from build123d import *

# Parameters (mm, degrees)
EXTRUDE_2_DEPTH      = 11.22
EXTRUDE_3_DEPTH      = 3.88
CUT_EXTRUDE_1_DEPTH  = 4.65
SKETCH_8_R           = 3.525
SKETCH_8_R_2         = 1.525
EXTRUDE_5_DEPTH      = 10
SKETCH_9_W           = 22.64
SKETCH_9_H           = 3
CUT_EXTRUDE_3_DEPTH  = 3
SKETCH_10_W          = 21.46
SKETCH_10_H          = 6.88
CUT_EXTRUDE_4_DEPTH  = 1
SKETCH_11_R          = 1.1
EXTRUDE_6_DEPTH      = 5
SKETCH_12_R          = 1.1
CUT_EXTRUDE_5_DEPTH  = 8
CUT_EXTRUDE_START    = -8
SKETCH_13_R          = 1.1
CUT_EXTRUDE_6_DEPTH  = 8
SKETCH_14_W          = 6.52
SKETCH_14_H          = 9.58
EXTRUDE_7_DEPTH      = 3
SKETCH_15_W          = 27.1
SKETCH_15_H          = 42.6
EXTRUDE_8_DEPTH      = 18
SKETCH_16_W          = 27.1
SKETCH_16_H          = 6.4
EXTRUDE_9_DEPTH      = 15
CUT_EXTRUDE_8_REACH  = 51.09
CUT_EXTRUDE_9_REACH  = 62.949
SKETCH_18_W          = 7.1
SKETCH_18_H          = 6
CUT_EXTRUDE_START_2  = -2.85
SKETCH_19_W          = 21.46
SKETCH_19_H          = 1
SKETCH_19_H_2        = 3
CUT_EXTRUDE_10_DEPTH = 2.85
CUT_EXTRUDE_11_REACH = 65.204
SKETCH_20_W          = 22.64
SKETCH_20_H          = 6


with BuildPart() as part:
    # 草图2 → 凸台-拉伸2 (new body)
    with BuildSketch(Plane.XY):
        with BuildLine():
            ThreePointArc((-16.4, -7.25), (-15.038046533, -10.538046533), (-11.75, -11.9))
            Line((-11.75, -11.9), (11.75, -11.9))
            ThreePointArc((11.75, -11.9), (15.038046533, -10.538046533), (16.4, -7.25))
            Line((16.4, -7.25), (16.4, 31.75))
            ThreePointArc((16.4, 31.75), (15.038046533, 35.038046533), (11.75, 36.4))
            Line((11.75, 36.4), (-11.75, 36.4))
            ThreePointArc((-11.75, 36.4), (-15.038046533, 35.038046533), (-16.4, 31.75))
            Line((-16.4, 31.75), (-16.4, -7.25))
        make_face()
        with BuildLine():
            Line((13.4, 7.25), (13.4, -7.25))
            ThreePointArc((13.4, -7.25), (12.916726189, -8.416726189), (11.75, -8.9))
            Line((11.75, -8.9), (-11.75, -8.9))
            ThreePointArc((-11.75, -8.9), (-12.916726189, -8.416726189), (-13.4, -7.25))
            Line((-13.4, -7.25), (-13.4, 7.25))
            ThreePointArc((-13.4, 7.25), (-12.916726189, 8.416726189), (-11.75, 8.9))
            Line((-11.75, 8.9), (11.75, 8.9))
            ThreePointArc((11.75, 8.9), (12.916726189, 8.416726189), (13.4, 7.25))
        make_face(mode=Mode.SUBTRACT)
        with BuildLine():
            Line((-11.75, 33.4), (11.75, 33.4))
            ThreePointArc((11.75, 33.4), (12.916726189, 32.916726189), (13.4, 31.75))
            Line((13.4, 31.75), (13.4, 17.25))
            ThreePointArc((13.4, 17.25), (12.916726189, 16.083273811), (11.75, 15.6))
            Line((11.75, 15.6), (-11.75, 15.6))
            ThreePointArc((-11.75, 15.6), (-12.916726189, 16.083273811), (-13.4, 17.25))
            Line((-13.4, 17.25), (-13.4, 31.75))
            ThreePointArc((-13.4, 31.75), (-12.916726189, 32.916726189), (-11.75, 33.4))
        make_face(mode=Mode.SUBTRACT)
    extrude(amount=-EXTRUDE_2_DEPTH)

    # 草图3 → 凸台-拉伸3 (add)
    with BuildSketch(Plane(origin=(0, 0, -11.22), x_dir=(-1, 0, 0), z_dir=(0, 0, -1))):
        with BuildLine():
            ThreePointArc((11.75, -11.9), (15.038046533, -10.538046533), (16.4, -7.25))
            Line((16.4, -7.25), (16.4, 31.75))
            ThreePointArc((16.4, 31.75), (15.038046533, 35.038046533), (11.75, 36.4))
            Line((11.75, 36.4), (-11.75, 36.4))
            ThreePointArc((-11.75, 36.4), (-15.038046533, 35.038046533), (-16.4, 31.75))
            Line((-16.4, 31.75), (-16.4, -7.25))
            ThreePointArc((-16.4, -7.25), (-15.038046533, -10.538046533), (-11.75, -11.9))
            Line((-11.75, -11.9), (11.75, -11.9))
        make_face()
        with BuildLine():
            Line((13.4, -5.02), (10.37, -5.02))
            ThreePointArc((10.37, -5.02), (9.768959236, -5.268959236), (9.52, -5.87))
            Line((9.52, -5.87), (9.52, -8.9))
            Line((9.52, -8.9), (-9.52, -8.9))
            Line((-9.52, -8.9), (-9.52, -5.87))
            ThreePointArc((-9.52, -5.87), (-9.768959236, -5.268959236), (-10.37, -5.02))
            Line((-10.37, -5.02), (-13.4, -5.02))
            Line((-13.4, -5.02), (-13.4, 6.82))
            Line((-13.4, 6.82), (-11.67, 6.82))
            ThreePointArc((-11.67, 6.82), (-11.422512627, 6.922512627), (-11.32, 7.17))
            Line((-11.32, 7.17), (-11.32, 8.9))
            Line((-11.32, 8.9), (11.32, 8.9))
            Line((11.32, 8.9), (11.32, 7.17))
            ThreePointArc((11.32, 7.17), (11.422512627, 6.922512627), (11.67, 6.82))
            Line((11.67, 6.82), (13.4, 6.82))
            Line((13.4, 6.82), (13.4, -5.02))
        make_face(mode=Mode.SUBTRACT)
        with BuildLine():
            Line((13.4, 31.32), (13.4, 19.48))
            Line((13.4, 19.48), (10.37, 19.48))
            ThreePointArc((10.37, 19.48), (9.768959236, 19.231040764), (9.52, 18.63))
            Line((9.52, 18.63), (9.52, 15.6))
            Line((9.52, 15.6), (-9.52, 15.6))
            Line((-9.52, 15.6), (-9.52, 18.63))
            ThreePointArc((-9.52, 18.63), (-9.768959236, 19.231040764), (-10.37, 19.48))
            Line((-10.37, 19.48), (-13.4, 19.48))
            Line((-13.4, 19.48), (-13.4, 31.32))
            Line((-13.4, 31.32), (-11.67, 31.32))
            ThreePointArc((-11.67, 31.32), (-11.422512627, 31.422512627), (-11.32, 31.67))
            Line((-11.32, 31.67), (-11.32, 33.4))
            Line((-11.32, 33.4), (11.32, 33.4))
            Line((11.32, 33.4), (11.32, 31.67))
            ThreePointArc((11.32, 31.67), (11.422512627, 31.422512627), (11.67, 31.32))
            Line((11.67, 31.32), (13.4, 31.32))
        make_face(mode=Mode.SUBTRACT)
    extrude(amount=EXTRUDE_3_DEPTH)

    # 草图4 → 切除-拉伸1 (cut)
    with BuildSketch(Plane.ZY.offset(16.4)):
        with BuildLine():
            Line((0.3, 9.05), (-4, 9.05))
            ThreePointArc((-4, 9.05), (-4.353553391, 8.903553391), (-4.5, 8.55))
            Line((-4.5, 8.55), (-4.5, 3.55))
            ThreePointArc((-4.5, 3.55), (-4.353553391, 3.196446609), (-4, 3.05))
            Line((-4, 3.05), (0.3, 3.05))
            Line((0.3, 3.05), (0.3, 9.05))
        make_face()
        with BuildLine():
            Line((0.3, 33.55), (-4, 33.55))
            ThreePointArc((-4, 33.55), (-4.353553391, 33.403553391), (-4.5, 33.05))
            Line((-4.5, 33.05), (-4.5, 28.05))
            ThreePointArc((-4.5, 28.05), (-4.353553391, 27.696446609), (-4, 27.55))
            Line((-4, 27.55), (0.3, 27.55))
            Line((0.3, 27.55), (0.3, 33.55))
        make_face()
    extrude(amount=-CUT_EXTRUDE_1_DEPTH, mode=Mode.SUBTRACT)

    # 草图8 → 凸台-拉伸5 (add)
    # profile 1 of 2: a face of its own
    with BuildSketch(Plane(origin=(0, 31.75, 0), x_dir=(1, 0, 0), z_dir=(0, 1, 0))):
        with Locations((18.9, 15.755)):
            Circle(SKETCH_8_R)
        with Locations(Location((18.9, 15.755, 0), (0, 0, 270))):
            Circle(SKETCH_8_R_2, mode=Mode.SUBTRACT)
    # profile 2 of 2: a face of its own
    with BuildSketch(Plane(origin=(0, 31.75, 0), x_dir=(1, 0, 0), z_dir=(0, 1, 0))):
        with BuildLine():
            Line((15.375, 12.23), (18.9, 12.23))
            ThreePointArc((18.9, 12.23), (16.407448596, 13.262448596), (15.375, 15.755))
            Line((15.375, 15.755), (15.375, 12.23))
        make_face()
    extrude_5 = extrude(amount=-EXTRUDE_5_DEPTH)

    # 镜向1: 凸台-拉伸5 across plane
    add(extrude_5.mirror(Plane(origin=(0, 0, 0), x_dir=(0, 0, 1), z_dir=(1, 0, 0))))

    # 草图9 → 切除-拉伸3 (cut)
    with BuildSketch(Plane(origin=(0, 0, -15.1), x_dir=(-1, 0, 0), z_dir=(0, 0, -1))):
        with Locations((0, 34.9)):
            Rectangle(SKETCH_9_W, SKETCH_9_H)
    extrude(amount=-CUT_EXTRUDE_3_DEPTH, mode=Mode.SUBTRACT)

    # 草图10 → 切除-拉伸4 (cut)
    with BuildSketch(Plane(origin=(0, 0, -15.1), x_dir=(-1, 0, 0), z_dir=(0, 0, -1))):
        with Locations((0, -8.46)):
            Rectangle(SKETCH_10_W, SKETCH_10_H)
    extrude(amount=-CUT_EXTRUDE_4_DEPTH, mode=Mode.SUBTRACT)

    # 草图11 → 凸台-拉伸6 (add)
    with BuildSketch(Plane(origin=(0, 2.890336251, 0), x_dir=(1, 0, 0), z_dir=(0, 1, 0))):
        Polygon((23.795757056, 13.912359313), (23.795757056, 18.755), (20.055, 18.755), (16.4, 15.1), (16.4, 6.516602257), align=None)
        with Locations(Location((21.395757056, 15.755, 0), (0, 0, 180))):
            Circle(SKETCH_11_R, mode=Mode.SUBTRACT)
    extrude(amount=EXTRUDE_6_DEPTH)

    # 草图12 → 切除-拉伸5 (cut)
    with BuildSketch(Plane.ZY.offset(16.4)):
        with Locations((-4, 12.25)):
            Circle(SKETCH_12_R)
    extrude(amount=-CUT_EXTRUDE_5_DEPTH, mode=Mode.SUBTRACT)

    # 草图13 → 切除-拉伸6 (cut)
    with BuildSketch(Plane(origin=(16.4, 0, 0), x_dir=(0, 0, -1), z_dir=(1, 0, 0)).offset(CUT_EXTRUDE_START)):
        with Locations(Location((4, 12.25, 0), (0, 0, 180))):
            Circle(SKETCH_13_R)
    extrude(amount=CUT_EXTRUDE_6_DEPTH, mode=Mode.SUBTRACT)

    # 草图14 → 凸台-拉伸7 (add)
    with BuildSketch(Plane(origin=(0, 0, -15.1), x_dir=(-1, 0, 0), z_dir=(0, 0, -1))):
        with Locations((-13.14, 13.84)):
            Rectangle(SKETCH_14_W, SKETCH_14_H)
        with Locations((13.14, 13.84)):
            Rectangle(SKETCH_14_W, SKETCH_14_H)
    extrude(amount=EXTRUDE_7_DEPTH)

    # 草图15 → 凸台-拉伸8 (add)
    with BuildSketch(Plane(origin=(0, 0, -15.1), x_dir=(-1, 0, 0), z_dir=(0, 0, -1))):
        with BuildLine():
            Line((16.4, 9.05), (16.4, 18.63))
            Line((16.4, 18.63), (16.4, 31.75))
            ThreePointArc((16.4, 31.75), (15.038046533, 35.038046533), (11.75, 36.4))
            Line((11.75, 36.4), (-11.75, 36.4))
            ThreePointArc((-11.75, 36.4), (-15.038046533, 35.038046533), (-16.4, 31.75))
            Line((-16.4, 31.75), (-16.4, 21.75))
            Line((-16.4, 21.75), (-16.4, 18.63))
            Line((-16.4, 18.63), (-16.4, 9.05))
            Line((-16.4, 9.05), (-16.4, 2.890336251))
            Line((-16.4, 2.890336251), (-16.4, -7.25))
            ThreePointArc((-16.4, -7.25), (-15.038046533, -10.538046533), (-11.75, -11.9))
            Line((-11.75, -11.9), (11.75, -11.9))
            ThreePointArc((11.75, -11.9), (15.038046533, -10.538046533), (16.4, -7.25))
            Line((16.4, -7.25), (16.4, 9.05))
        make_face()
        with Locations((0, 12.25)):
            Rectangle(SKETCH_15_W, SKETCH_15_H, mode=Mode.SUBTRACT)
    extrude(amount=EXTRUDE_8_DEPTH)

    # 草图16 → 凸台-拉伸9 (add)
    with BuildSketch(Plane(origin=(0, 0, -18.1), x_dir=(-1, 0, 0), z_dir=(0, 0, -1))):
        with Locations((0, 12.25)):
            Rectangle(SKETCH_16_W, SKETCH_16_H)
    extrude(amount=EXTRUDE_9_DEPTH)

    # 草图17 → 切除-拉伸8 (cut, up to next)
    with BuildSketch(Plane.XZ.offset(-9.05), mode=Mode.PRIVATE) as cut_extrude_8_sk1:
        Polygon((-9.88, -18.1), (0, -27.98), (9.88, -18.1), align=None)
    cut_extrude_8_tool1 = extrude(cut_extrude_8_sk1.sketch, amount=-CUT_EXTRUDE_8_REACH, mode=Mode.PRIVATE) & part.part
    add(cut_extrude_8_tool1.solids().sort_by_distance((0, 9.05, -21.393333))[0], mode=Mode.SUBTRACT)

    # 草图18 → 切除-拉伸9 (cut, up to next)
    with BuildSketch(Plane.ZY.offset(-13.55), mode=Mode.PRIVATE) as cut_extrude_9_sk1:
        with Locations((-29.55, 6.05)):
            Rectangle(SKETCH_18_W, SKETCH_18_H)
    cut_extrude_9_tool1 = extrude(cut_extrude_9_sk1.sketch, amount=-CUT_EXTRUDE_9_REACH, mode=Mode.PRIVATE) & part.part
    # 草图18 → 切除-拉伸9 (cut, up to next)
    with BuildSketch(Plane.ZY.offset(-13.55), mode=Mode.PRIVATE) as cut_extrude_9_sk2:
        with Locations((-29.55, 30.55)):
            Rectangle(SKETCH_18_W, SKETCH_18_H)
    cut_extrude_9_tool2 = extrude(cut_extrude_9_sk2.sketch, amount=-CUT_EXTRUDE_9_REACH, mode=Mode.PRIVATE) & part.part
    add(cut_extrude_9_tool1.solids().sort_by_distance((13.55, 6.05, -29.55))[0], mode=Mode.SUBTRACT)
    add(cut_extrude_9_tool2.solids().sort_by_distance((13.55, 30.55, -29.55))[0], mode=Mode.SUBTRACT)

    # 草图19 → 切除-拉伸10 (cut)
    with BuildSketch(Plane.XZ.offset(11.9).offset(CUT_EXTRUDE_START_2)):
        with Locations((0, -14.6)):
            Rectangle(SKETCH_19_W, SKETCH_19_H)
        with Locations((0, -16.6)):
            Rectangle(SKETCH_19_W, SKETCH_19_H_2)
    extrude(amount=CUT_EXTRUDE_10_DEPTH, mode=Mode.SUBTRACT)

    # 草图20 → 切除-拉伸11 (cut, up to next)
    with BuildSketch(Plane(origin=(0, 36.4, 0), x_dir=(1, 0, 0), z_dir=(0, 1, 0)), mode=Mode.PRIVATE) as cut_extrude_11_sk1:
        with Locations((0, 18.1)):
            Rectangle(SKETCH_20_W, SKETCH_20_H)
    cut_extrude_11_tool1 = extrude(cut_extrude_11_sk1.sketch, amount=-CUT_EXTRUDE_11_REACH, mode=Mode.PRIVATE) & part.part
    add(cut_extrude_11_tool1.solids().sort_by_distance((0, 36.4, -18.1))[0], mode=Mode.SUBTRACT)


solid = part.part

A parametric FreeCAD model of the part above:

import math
import FreeCAD as App
import Part
import Sketcher
from FreeCAD import Vector
Q = App.Units.Quantity

doc = App.newDocument("Part")
body = doc.addObject("PartDesign::Body", "Body")

sketch1 = doc.addObject("Sketcher::SketchObject", "Sketch")
body.addObject(sketch1)
sketch1.AttachmentSupport = (doc.XY_Plane, [""])
sketch1.MapMode = "FlatFace"
sketch1.addGeometry([
    Part.ArcOfCircle(Part.Circle(Vector(-11.75, -7.25, 0), Vector(0, 0, 1), 4.65), math.radians(180), math.radians(270)),
    Part.LineSegment(Vector(-11.75, -11.9, 0), Vector(11.75, -11.9, 0)),
    Part.ArcOfCircle(Part.Circle(Vector(11.75, -7.25, 0), Vector(0, 0, 1), 4.65), math.radians(-90), math.radians(0)),
    Part.LineSegment(Vector(16.4, -7.25, 0), Vector(16.4, 31.75, 0)),
    Part.ArcOfCircle(Part.Circle(Vector(11.75, 31.75, 0), Vector(0, 0, 1), 4.65), math.radians(0), math.radians(90)),
    Part.LineSegment(Vector(11.75, 36.4, 0), Vector(-11.75, 36.4, 0)),
    Part.ArcOfCircle(Part.Circle(Vector(-11.75, 31.75, 0), Vector(0, 0, 1), 4.65), math.radians(90), math.radians(180)),
    Part.LineSegment(Vector(-16.4, 31.75, 0), Vector(-16.4, -7.25, 0)),
    Part.ArcOfCircle(Part.Circle(Vector(11.75, 7.25, 0), Vector(0, 0, 1), 1.65), math.radians(0), math.radians(90)),
    Part.LineSegment(Vector(13.4, 7.25, 0), Vector(13.4, -7.25, 0)),
    Part.ArcOfCircle(Part.Circle(Vector(11.75, -7.25, 0), Vector(0, 0, 1), 1.65), math.radians(-90), math.radians(0)),
    Part.LineSegment(Vector(11.75, -8.9, 0), Vector(-11.75, -8.9, 0)),
    Part.ArcOfCircle(Part.Circle(Vector(-11.75, -7.25, 0), Vector(0, 0, 1), 1.65), math.radians(180), math.radians(270)),
    Part.LineSegment(Vector(-13.4, -7.25, 0), Vector(-13.4, 7.25, 0)),
    Part.ArcOfCircle(Part.Circle(Vector(-11.75, 7.25, 0), Vector(0, 0, 1), 1.65), math.radians(90), math.radians(180)),
    Part.LineSegment(Vector(-11.75, 8.9, 0), Vector(11.75, 8.9, 0)),
    Part.ArcOfCircle(Part.Circle(Vector(-11.75, 31.75, 0), Vector(0, 0, 1), 1.65), math.radians(90), math.radians(180)),
    Part.LineSegment(Vector(-11.75, 33.4, 0), Vector(11.75, 33.4, 0)),
    Part.ArcOfCircle(Part.Circle(Vector(11.75, 31.75, 0), Vector(0, 0, 1), 1.65), math.radians(0), math.radians(90)),
    Part.LineSegment(Vector(13.4, 31.75, 0), Vector(13.4, 17.25, 0)),
    Part.ArcOfCircle(Part.Circle(Vector(11.75, 17.25, 0), Vector(0, 0, 1), 1.65), math.radians(-90), math.radians(0)),
    Part.LineSegment(Vector(11.75, 15.6, 0), Vector(-11.75, 15.6, 0)),
    Part.ArcOfCircle(Part.Circle(Vector(-11.75, 17.25, 0), Vector(0, 0, 1), 1.65), math.radians(180), math.radians(270)),
    Part.LineSegment(Vector(-13.4, 17.25, 0), Vector(-13.4, 31.75, 0)),
], False)
sketch1.addConstraint([
    Sketcher.Constraint("Tangent", 0, 2, 1, 1),
    Sketcher.Constraint("Tangent", 1, 2, 2, 1),
    Sketcher.Constraint("Tangent", 2, 2, 3, 1),
    Sketcher.Constraint("Tangent", 3, 2, 4, 1),
    Sketcher.Constraint("Tangent", 4, 2, 5, 1),
    Sketcher.Constraint("Tangent", 5, 2, 6, 1),
    Sketcher.Constraint("Tangent", 6, 2, 7, 1),
    Sketcher.Constraint("Tangent", 7, 2, 0, 1),
    Sketcher.Constraint("Tangent", 8, 1, 9, 1),
    Sketcher.Constraint("Tangent", 9, 2, 10, 2),
    Sketcher.Constraint("Tangent", 10, 1, 11, 1),
    Sketcher.Constraint("Tangent", 11, 2, 12, 2),
    Sketcher.Constraint("Tangent", 12, 1, 13, 1),
    Sketcher.Constraint("Tangent", 13, 2, 14, 2),
    Sketcher.Constraint("Tangent", 14, 1, 15, 1),
    Sketcher.Constraint("Tangent", 15, 2, 8, 2),
    Sketcher.Constraint("Tangent", 16, 1, 17, 1),
    Sketcher.Constraint("Tangent", 17, 2, 18, 2),
    Sketcher.Constraint("Tangent", 18, 1, 19, 1),
    Sketcher.Constraint("Tangent", 19, 2, 20, 2),
    Sketcher.Constraint("Tangent", 20, 1, 21, 1),
    Sketcher.Constraint("Tangent", 21, 2, 22, 2),
    Sketcher.Constraint("Tangent", 22, 1, 23, 1),
    Sketcher.Constraint("Tangent", 23, 2, 16, 2),
    Sketcher.Constraint("Horizontal", 1),
    Sketcher.Constraint("Vertical", 3),
    Sketcher.Constraint("Horizontal", 5),
    Sketcher.Constraint("Vertical", 7),
    Sketcher.Constraint("Vertical", 9),
    Sketcher.Constraint("Horizontal", 11),
    Sketcher.Constraint("Vertical", 13),
    Sketcher.Constraint("Horizontal", 15),
    Sketcher.Constraint("Horizontal", 17),
    Sketcher.Constraint("Vertical", 19),
    Sketcher.Constraint("Horizontal", 21),
    Sketcher.Constraint("Vertical", 23),
    Sketcher.Constraint("Coincident", 10, 3, 2, 3),
    Sketcher.Constraint("Coincident", 12, 3, 0, 3),
    Sketcher.Constraint("Coincident", 16, 3, 6, 3),
    Sketcher.Constraint("Coincident", 18, 3, 4, 3),
    Sketcher.Constraint("Equal", 0, 2),
    Sketcher.Constraint("Equal", 2, 4),
    Sketcher.Constraint("Equal", 4, 6),
    Sketcher.Constraint("Equal", 8, 10),
    Sketcher.Constraint("Equal", 12, 14),
    Sketcher.Constraint("Equal", 14, 16),
    Sketcher.Constraint("Equal", 18, 20),
    Sketcher.Constraint("Equal", 20, 22),
    Sketcher.Constraint("Symmetric", 0, 3, 8, 3, -1, 1),
    Sketcher.Constraint("Equal", 13, 19),
    Sketcher.Constraint("DistanceY", 3, 1, 3, 2, 39.0),
    Sketcher.Constraint("Radius", 0, 4.65),
    Sketcher.Constraint("Radius", 8, 1.65),
    Sketcher.Constraint("DistanceX", 1, 1, 1, 2, 23.5),
    Sketcher.Constraint("DistanceY", 9, 2, 9, 1, 14.5),
])
pad1 = doc.addObject("PartDesign::Pad", "Pad")
body.addObject(pad1)
pad1.Profile = sketch1
pad1.Length = 11.22
pad1.Reversed = True

sketch2 = doc.addObject("Sketcher::SketchObject", "Sketch001")
body.addObject(sketch2)
sketch2.AttachmentSupport = (doc.XY_Plane, [""])
sketch2.MapMode = "FlatFace"
sketch2.AttachmentOffset = App.Placement(Vector(0, 0, -11.22), App.Rotation())
sketch2.addGeometry([
    Part.ArcOfCircle(Part.Circle(Vector(-11.75, -7.25, 0), Vector(0, 0, 1), 4.65), math.radians(180), math.radians(270)),
    Part.LineSegment(Vector(-16.4, -7.25, 0), Vector(-16.4, 31.75, 0)),
    Part.ArcOfCircle(Part.Circle(Vector(-11.75, 31.75, 0), Vector(0, 0, 1), 4.65), math.radians(90), math.radians(180)),
    Part.LineSegment(Vector(-11.75, 36.4, 0), Vector(11.75, 36.4, 0)),
    Part.ArcOfCircle(Part.Circle(Vector(11.75, 31.75, 0), Vector(0, 0, 1), 4.65), math.radians(0), math.radians(90)),
    Part.LineSegment(Vector(16.4, 31.75, 0), Vector(16.4, -7.25, 0)),
    Part.ArcOfCircle(Part.Circle(Vector(11.75, -7.25, 0), Vector(0, 0, 1), 4.65), math.radians(-90), math.radians(0)),
    Part.LineSegment(Vector(11.75, -11.9, 0), Vector(-11.75, -11.9, 0)),
    Part.LineSegment(Vector(-13.4, 6.82, 0), Vector(-13.4, -5.02, 0)),
    Part.LineSegment(Vector(-13.4, -5.02, 0), Vector(-10.37, -5.02, 0)),
    Part.ArcOfCircle(Part.Circle(Vector(-10.37, -5.87, 0), Vector(0, 0, 1), 0.85), math.radians(0), math.radians(90)),
    Part.LineSegment(Vector(-9.52, -5.87, 0), Vector(-9.52, -8.9, 0)),
    Part.LineSegment(Vector(-9.52, -8.9, 0), Vector(9.52, -8.9, 0)),
    Part.LineSegment(Vector(9.52, -8.9, 0), Vector(9.52, -5.87, 0)),
    Part.ArcOfCircle(Part.Circle(Vector(10.37, -5.87, 0), Vector(0, 0, 1), 0.85), math.radians(90), math.radians(180)),
    Part.LineSegment(Vector(10.37, -5.02, 0), Vector(13.4, -5.02, 0)),
    Part.LineSegment(Vector(13.4, -5.02, 0), Vector(13.4, 6.82, 0)),
    Part.LineSegment(Vector(13.4, 6.82, 0), Vector(11.67, 6.82, 0)),
    Part.ArcOfCircle(Part.Circle(Vector(11.67, 7.17, 0), Vector(0, 0, 1), 0.35), math.radians(-180), math.radians(-90)),
    Part.LineSegment(Vector(11.32, 7.17, 0), Vector(11.32, 8.9, 0)),
    Part.LineSegment(Vector(11.32, 8.9, 0), Vector(-11.32, 8.9, 0)),
    Part.LineSegment(Vector(-11.32, 8.9, 0), Vector(-11.32, 7.17, 0)),
    Part.ArcOfCircle(Part.Circle(Vector(-11.67, 7.17, 0), Vector(0, 0, 1), 0.35), math.radians(-90), math.radians(0)),
    Part.LineSegment(Vector(-11.67, 6.82, 0), Vector(-13.4, 6.82, 0)),
    Part.LineSegment(Vector(-11.67, 31.32, 0), Vector(-13.4, 31.32, 0)),
    Part.LineSegment(Vector(-13.4, 31.32, 0), Vector(-13.4, 19.48, 0)),
    Part.LineSegment(Vector(-13.4, 19.48, 0), Vector(-10.37, 19.48, 0)),
    Part.ArcOfCircle(Part.Circle(Vector(-10.37, 18.63, 0), Vector(0, 0, 1), 0.85), math.radians(0), math.radians(90)),
    Part.LineSegment(Vector(-9.52, 18.63, 0), Vector(-9.52, 15.6, 0)),
    Part.LineSegment(Vector(-9.52, 15.6, 0), Vector(9.52, 15.6, 0)),
    Part.LineSegment(Vector(9.52, 15.6, 0), Vector(9.52, 18.63, 0)),
    Part.ArcOfCircle(Part.Circle(Vector(10.37, 18.63, 0), Vector(0, 0, 1), 0.85), math.radians(90), math.radians(180)),
    Part.LineSegment(Vector(10.37, 19.48, 0), Vector(13.4, 19.48, 0)),
    Part.LineSegment(Vector(13.4, 19.48, 0), Vector(13.4, 31.32, 0)),
    Part.LineSegment(Vector(13.4, 31.32, 0), Vector(11.67, 31.32, 0)),
    Part.ArcOfCircle(Part.Circle(Vector(11.67, 31.67, 0), Vector(0, 0, 1), 0.35), math.radians(-180), math.radians(-90)),
    Part.LineSegment(Vector(11.32, 31.67, 0), Vector(11.32, 33.4, 0)),
    Part.LineSegment(Vector(11.32, 33.4, 0), Vector(-11.32, 33.4, 0)),
    Part.LineSegment(Vector(-11.32, 33.4, 0), Vector(-11.32, 31.67, 0)),
    Part.ArcOfCircle(Part.Circle(Vector(-11.67, 31.67, 0), Vector(0, 0, 1), 0.35), math.radians(-90), math.radians(0)),
], False)
sketch2.addConstraint([
    Sketcher.Constraint("Tangent", 0, 1, 1, 1),
    Sketcher.Constraint("Tangent", 1, 2, 2, 2),
    Sketcher.Constraint("Tangent", 2, 1, 3, 1),
    Sketcher.Constraint("Tangent", 3, 2, 4, 2),
    Sketcher.Constraint("Tangent", 4, 1, 5, 1),
    Sketcher.Constraint("Tangent", 5, 2, 6, 2),
    Sketcher.Constraint("Tangent", 6, 1, 7, 1),
    Sketcher.Constraint("Tangent", 7, 2, 0, 2),
    Sketcher.Constraint("Coincident", 8, 2, 9, 1),
    Sketcher.Constraint("Tangent", 9, 2, 10, 2),
    Sketcher.Constraint("Tangent", 10, 1, 11, 1),
    Sketcher.Constraint("Coincident", 11, 2, 12, 1),
    Sketcher.Constraint("Coincident", 12, 2, 13, 1),
    Sketcher.Constraint("Tangent", 13, 2, 14, 2),
    Sketcher.Constraint("Tangent", 14, 1, 15, 1),
    Sketcher.Constraint("Coincident", 15, 2, 16, 1),
    Sketcher.Constraint("Coincident", 16, 2, 17, 1),
    Sketcher.Constraint("Tangent", 17, 2, 18, 2),
    Sketcher.Constraint("Tangent", 18, 1, 19, 1),
    Sketcher.Constraint("Coincident", 19, 2, 20, 1),
    Sketcher.Constraint("Coincident", 20, 2, 21, 1),
    Sketcher.Constraint("Tangent", 21, 2, 22, 2),
    Sketcher.Constraint("Tangent", 22, 1, 23, 1),
    Sketcher.Constraint("Coincident", 23, 2, 8, 1),
    Sketcher.Constraint("Coincident", 24, 2, 25, 1),
    Sketcher.Constraint("Coincident", 25, 2, 26, 1),
    Sketcher.Constraint("Tangent", 26, 2, 27, 2),
    Sketcher.Constraint("Tangent", 27, 1, 28, 1),
    Sketcher.Constraint("Coincident", 28, 2, 29, 1),
    Sketcher.Constraint("Coincident", 29, 2, 30, 1),
    Sketcher.Constraint("Tangent", 30, 2, 31, 2),
    Sketcher.Constraint("Tangent", 31, 1, 32, 1),
    Sketcher.Constraint("Coincident", 32, 2, 33, 1),
    Sketcher.Constraint("Coincident", 33, 2, 34, 1),
    Sketcher.Constraint("Tangent", 34, 2, 35, 2),
    Sketcher.Constraint("Tangent", 35, 1, 36, 1),
    Sketcher.Constraint("Coincident", 36, 2, 37, 1),
    Sketcher.Constraint("Coincident", 37, 2, 38, 1),
    Sketcher.Constraint("Tangent", 38, 2, 39, 2),
    Sketcher.Constraint("Tangent", 39, 1, 24, 1),
    Sketcher.Constraint("Vertical", 1),
    Sketcher.Constraint("Horizontal", 3),
    Sketcher.Constraint("Vertical", 5),
    Sketcher.Constraint("Horizontal", 7),
    Sketcher.Constraint("Vertical", 8),
    Sketcher.Constraint("Horizontal", 9),
    Sketcher.Constraint("Vertical", 11),
    Sketcher.Constraint("Horizontal", 12),
    Sketcher.Constraint("Vertical", 13),
    Sketcher.Constraint("Horizontal", 15),
    Sketcher.Constraint("Vertical", 16),
    Sketcher.Constraint("Horizontal", 17),
    Sketcher.Constraint("Vertical", 19),
    Sketcher.Constraint("Horizontal", 20),
    Sketcher.Constraint("Vertical", 21),
    Sketcher.Constraint("Horizontal", 23),
    Sketcher.Constraint("Horizontal", 24),
    Sketcher.Constraint("Vertical", 25),
    Sketcher.Constraint("Horizontal", 26),
    Sketcher.Constraint("Vertical", 28),
    Sketcher.Constraint("Horizontal", 29),
    Sketcher.Constraint("Vertical", 30),
    Sketcher.Constraint("Horizontal", 32),
    Sketcher.Constraint("Vertical", 33),
    Sketcher.Constraint("Horizontal", 34),
    Sketcher.Constraint("Vertical", 36),
    Sketcher.Constraint("Horizontal", 37),
    Sketcher.Constraint("Vertical", 38),
    Sketcher.Constraint("Equal", 0, 2),
    Sketcher.Constraint("Equal", 2, 4),
    Sketcher.Constraint("Equal", 4, 6),
    Sketcher.Constraint("Equal", 10, 14),
    Sketcher.Constraint("Equal", 18, 22),
    Sketcher.Constraint("Equal", 14, 27),
    Sketcher.Constraint("Equal", 27, 31),
    Sketcher.Constraint("Equal", 22, 35),
    Sketcher.Constraint("Equal", 35, 39),
    Sketcher.Constraint("Symmetric", 10, 3, 14, 3, -2),
    Sketcher.Constraint("Symmetric", 18, 3, 22, 3, -2),
    Sketcher.Constraint("Symmetric", 27, 3, 31, 3, -2),
    Sketcher.Constraint("Symmetric", 35, 3, 39, 3, -2),
    Sketcher.Constraint("Vertical", 10, 3, 27, 3),
    Sketcher.Constraint("Vertical", 18, 3, 35, 3),
    Sketcher.Constraint("Vertical", 23, 2, 24, 2),
    Sketcher.Constraint("Vertical", 16, 2, 32, 2),
    Sketcher.Constraint("Equal", 9, 15),
    Sketcher.Constraint("Equal", 32, 11),
    Sketcher.Constraint("Equal", 34, 19),
    Sketcher.Constraint("Equal", 16, 25),
    Sketcher.Constraint("Equal", 13, 28),
    Sketcher.Constraint("Equal", 21, 36),
    Sketcher.Constraint("DistanceY", 1, 1, 1, 2, 39.0),
    Sketcher.Constraint("Radius", 0, 4.65),
    Sketcher.Constraint("Radius", 10, 0.85),
    Sketcher.Constraint("Radius", 18, 0.35),
    Sketcher.Constraint("DistanceX", 3, 1, 3, 2, 23.5),
    Sketcher.Constraint("DistanceX", 0, 1, 8, 2, 3.0),
    Sketcher.Constraint("DistanceY", 7, 2, 11, 2, 3.0),
    Sketcher.Constraint("DistanceX", 15, 2, 5, 2, 3.0),
    Sketcher.Constraint("DistanceY", 37, 2, 2, 1, 3.0),
    Sketcher.Constraint("DistanceX", 9, 1, 9, 2, 3.03),
    Sketcher.Constraint("DistanceX", 17, 2, 17, 1, 1.73),
    Sketcher.Constraint("DistanceY", 8, 2, 8, 1, 11.84),
    Sketcher.Constraint("DistanceY", -1, 1, 2, 1, 36.4),
])
pad2 = doc.addObject("PartDesign::Pad", "Pad001")
body.addObject(pad2)
pad2.Profile = sketch2
pad2.Length = 3.88
pad2.Reversed = True

sketch3 = doc.addObject("Sketcher::SketchObject", "Sketch002")
body.addObject(sketch3)
sketch3.AttachmentSupport = (doc.YZ_Plane, [""])
sketch3.MapMode = "FlatFace"
sketch3.AttachmentOffset = App.Placement(Vector(0, 0, -16.4), App.Rotation())
sketch3.addGeometry([
    Part.LineSegment(Vector(9.05, 0.3, 0), Vector(9.05, -4, 0)),
    Part.ArcOfCircle(Part.Circle(Vector(8.55, -4, 0), Vector(0, 0, 1), 0.5), math.radians(-90), math.radians(0)),
    Part.LineSegment(Vector(8.55, -4.5, 0), Vector(3.55, -4.5, 0)),
    Part.ArcOfCircle(Part.Circle(Vector(3.55, -4, 0), Vector(0, 0, 1), 0.5), math.radians(180), math.radians(270)),
    Part.LineSegment(Vector(3.05, -4, 0), Vector(3.05, 0.3, 0)),
    Part.LineSegment(Vector(3.05, 0.3, 0), Vector(9.05, 0.3, 0)),
    Part.LineSegment(Vector(33.55, 0.3, 0), Vector(33.55, -4, 0)),
    Part.ArcOfCircle(Part.Circle(Vector(33.05, -4, 0), Vector(0, 0, 1), 0.5), math.radians(-90), math.radians(0)),
    Part.LineSegment(Vector(33.05, -4.5, 0), Vector(28.05, -4.5, 0)),
    Part.ArcOfCircle(Part.Circle(Vector(28.05, -4, 0), Vector(0, 0, 1), 0.5), math.radians(180), math.radians(270)),
    Part.LineSegment(Vector(27.55, -4, 0), Vector(27.55, 0.3, 0)),
    Part.LineSegment(Vector(27.55, 0.3, 0), Vector(33.55, 0.3, 0)),
], False)
sketch3.addConstraint([
    Sketcher.Constraint("Tangent", 0, 2, 1, 2),
    Sketcher.Constraint("Tangent", 1, 1, 2, 1),
    Sketcher.Constraint("Tangent", 2, 2, 3, 2),
    Sketcher.Constraint("Tangent", 3, 1, 4, 1),
    Sketcher.Constraint("Coincident", 4, 2, 5, 1),
    Sketcher.Constraint("Coincident", 5, 2, 0, 1),
    Sketcher.Constraint("Tangent", 6, 2, 7, 2),
    Sketcher.Constraint("Tangent", 7, 1, 8, 1),
    Sketcher.Constraint("Tangent", 8, 2, 9, 2),
    Sketcher.Constraint("Tangent", 9, 1, 10, 1),
    Sketcher.Constraint("Coincident", 10, 2, 11, 1),
    Sketcher.Constraint("Coincident", 11, 2, 6, 1),
    Sketcher.Constraint("Vertical", 0),
    Sketcher.Constraint("Horizontal", 2),
    Sketcher.Constraint("Vertical", 4),
    Sketcher.Constraint("Horizontal", 5),
    Sketcher.Constraint("Vertical", 6),
    Sketcher.Constraint("Horizontal", 8),
    Sketcher.Constraint("Vertical", 10),
    Sketcher.Constraint("Horizontal", 11),
    Sketcher.Constraint("Equal", 1, 3),
    Sketcher.Constraint("Equal", 3, 7),
    Sketcher.Constraint("Equal", 7, 9),
    Sketcher.Constraint("Horizontal", 3, 3, 7, 3),
    Sketcher.Constraint("Horizontal", 5, 2, 10, 2),
    Sketcher.Constraint("Equal", 2, 8),
    Sketcher.Constraint("Radius", 1, 0.5),
    Sketcher.Constraint("DistanceX", 2, 2, 2, 1, 5.0),
    Sketcher.Constraint("DistanceY", 0, 2, 0, 1, 4.3),
    Sketcher.Constraint("DistanceY", 1, 3, -1, 1, 4.0),
    Sketcher.Constraint("DistanceX", 0, 2, 9, 3, 19.0),
    Sketcher.Constraint("DistanceX", -1, 1, 1, 3, 8.55),
])
pocket1 = doc.addObject("PartDesign::Pocket", "Pocket")
body.addObject(pocket1)
pocket1.Profile = sketch3
pocket1.Length = 4.65
pocket1.Reversed = True

sketch4 = doc.addObject("Sketcher::SketchObject", "Sketch003")
body.addObject(sketch4)
sketch4.AttachmentSupport = (doc.XZ_Plane, [""])
sketch4.MapMode = "FlatFace"
sketch4.AttachmentOffset = App.Placement(Vector(0, 0, -31.75), App.Rotation())
sketch4.addGeometry([
    Part.LineSegment(Vector(15.375, -15.755, 0), Vector(15.375, -12.23, 0)),
    Part.LineSegment(Vector(15.375, -12.23, 0), Vector(18.9, -12.23, 0)),
    Part.ArcOfCircle(Part.Circle(Vector(18.9, -15.755, 0), Vector(0, 0, 1), 3.525), math.radians(180), math.radians(450)),
    Part.Circle(Vector(18.9, -15.755, 0), Vector(0, 0, 1), 1.525),
], False)
sketch4.addConstraint([
    Sketcher.Constraint("Coincident", 0, 2, 1, 1),
    Sketcher.Constraint("Tangent", 1, 2, 2, 2),
    Sketcher.Constraint("Tangent", 2, 1, 0, 1),
    Sketcher.Constraint("Vertical", 0),
    Sketcher.Constraint("Horizontal", 1),
    Sketcher.Constraint("Coincident", 3, 3, 2, 3),
    Sketcher.Constraint("Diameter", 3, 3.05),
    Sketcher.Constraint("Radius", 2, 3.525),
    Sketcher.Constraint("DistanceX", -1, 1, 2, 3, 18.9),
    Sketcher.Constraint("DistanceY", 0, 2, -1, 1, 12.23),
])
pad3 = doc.addObject("PartDesign::Pad", "Pad002")
body.addObject(pad3)
pad3.Profile = sketch4
pad3.Length = 10
doc.recompute()

mirrored = doc.addObject("PartDesign::Mirrored", "Mirrored")
body.addObject(mirrored)
mirrored.Originals = [pad3]
mirrored.MirrorPlane = (doc.YZ_Plane, [""])
body.Tip = mirrored

sketch5 = doc.addObject("Sketcher::SketchObject", "Sketch004")
body.addObject(sketch5)
sketch5.AttachmentSupport = (doc.XY_Plane, [""])
sketch5.MapMode = "FlatFace"
sketch5.AttachmentOffset = App.Placement(Vector(0, 0, -15.1), App.Rotation())
sketch5.addGeometry([
    Part.LineSegment(Vector(11.32, 36.4, 0), Vector(11.32, 33.4, 0)),
    Part.LineSegment(Vector(11.32, 33.4, 0), Vector(-11.32, 33.4, 0)),
    Part.LineSegment(Vector(-11.32, 33.4, 0), Vector(-11.32, 36.4, 0)),
    Part.LineSegment(Vector(-11.32, 36.4, 0), Vector(11.32, 36.4, 0)),
], False)
sketch5.addConstraint([
    Sketcher.Constraint("Coincident", 0, 2, 1, 1),
    Sketcher.Constraint("Coincident", 1, 2, 2, 1),
    Sketcher.Constraint("Coincident", 2, 2, 3, 1),
    Sketcher.Constraint("Coincident", 3, 2, 0, 1),
    Sketcher.Constraint("Vertical", 0),
    Sketcher.Constraint("Horizontal", 1),
    Sketcher.Constraint("Vertical", 2),
    Sketcher.Constraint("Horizontal", 3),
    Sketcher.Constraint("DistanceY", 0, 2, 0, 1, 3.0),
    Sketcher.Constraint("DistanceX", 1, 2, 1, 1, 22.64),
    Sketcher.Constraint("DistanceY", -1, 1, 0, 2, 33.4),
    Sketcher.Constraint("DistanceX", -1, 1, 0, 2, 11.32),
])
pocket2 = doc.addObject("PartDesign::Pocket", "Pocket001")
body.addObject(pocket2)
pocket2.Profile = sketch5
pocket2.Length = 3
pocket2.Reversed = True

sketch6 = doc.addObject("Sketcher::SketchObject", "Sketch005")
body.addObject(sketch6)
sketch6.AttachmentSupport = (doc.XY_Plane, [""])
sketch6.MapMode = "FlatFace"
sketch6.AttachmentOffset = App.Placement(Vector(0, 0, -15.1), App.Rotation())
sketch6.addGeometry([
    Part.LineSegment(Vector(10.73, -5.02, 0), Vector(10.73, -11.9, 0)),
    Part.LineSegment(Vector(10.73, -11.9, 0), Vector(-10.73, -11.9, 0)),
    Part.LineSegment(Vector(-10.73, -11.9, 0), Vector(-10.73, -5.02, 0)),
    Part.LineSegment(Vector(-10.73, -5.02, 0), Vector(10.73, -5.02, 0)),
], False)
sketch6.addConstraint([
    Sketcher.Constraint("Coincident", 0, 2, 1, 1),
    Sketcher.Constraint("Coincident", 1, 2, 2, 1),
    Sketcher.Constraint("Coincident", 2, 2, 3, 1),
    Sketcher.Constraint("Coincident", 3, 2, 0, 1),
    Sketcher.Constraint("Vertical", 0),
    Sketcher.Constraint("Horizontal", 1),
    Sketcher.Constraint("Vertical", 2),
    Sketcher.Constraint("Horizontal", 3),
    Sketcher.Constraint("DistanceX", 1, 2, 1, 1, 21.46),
    Sketcher.Constraint("DistanceY", 0, 2, 0, 1, 6.88),
    Sketcher.Constraint("DistanceY", 0, 2, -1, 1, 11.9),
    Sketcher.Constraint("DistanceX", -1, 1, 0, 2, 10.73),
])
pocket3 = doc.addObject("PartDesign::Pocket", "Pocket002")
body.addObject(pocket3)
pocket3.Profile = sketch6
pocket3.Length = 1
pocket3.Reversed = True

sketch7 = doc.addObject("Sketcher::SketchObject", "Sketch006")
body.addObject(sketch7)
sketch7.AttachmentSupport = (doc.XZ_Plane, [""])
sketch7.MapMode = "FlatFace"
sketch7.AttachmentOffset = App.Placement(Vector(0, 0, -2.890336), App.Rotation())
sketch7.addGeometry([
    Part.LineSegment(Vector(23.795757, -13.912359, 0), Vector(23.795757, -18.755, 0)),
    Part.LineSegment(Vector(23.795757, -18.755, 0), Vector(20.055, -18.755, 0)),
    Part.LineSegment(Vector(20.055, -18.755, 0), Vector(16.4, -15.1, 0)),
    Part.LineSegment(Vector(16.4, -15.1, 0), Vector(16.4, -6.516602, 0)),
    Part.LineSegment(Vector(16.4, -6.516602, 0), Vector(23.795757, -13.912359, 0)),
    Part.Circle(Vector(21.395757, -15.755, 0), Vector(0, 0, 1), 1.1),
], False)
sketch7.addConstraint([
    Sketcher.Constraint("Coincident", 0, 2, 1, 1),
    Sketcher.Constraint("Coincident", 1, 2, 2, 1),
    Sketcher.Constraint("Coincident", 2, 2, 3, 1),
    Sketcher.Constraint("Coincident", 3, 2, 4, 1),
    Sketcher.Constraint("Coincident", 4, 2, 0, 1),
    Sketcher.Constraint("Vertical", 0),
    Sketcher.Constraint("Horizontal", 1),
    Sketcher.Constraint("Vertical", 3),
    Sketcher.Constraint("Parallel", 2, 4),
    Sketcher.Constraint("Diameter", 5, 2.2),
    Sketcher.Constraint("Angle", 2, Q("135 deg")),
    Sketcher.Constraint("DistanceY", 0, 2, 5, 3, 3.0),
    Sketcher.Constraint("DistanceX", -1, 1, 2, 2, 16.4),
    Sketcher.Constraint("DistanceY", 2, 2, -1, 1, 15.1),
    Sketcher.Constraint("DistanceX", 5, 3, 0, 2, 2.4),
    Sketcher.Constraint("DistanceY", 5, 3, -1, 1, 15.755),
    Sketcher.Constraint("DistanceY", 0, 2, 0, 1, 4.842641),
    Sketcher.Constraint("Distance", 4, 10.45918),
])
pad4 = doc.addObject("PartDesign::Pad", "Pad003")
body.addObject(pad4)
pad4.Profile = sketch7
pad4.Length = 5
pad4.Reversed = True

sketch8 = doc.addObject("Sketcher::SketchObject", "Sketch007")
body.addObject(sketch8)
sketch8.AttachmentSupport = (doc.YZ_Plane, [""])
sketch8.MapMode = "FlatFace"
sketch8.AttachmentOffset = App.Placement(Vector(0, 0, -16.4), App.Rotation())
sketch8.addGeometry(Part.Circle(Vector(12.25, -4, 0), Vector(0, 0, 1), 1.1), False)
sketch8.addConstraint([
    Sketcher.Constraint("Diameter", 0, 2.2),
    Sketcher.Constraint("DistanceY", 0, 3, -1, 1, 4.0),
    Sketcher.Constraint("DistanceX", -1, 1, 0, 3, 12.25),
])
pocket4 = doc.addObject("PartDesign::Pocket", "Pocket003")
body.addObject(pocket4)
pocket4.Profile = sketch8
pocket4.Length = 8
pocket4.Reversed = True

sketch9 = doc.addObject("Sketcher::SketchObject", "Sketch008")
body.addObject(sketch9)
sketch9.AttachmentSupport = (doc.YZ_Plane, [""])
sketch9.MapMode = "FlatFace"
sketch9.AttachmentOffset = App.Placement(Vector(0, 0, 8.4), App.Rotation())
sketch9.addGeometry(Part.Circle(Vector(12.25, -4, 0), Vector(0, 0, 1), 1.1), False)
sketch9.addConstraint([
    Sketcher.Constraint("Diameter", 0, 2.2),
    Sketcher.Constraint("DistanceY", 0, 3, -1, 1, 4.0),
    Sketcher.Constraint("DistanceX", -1, 1, 0, 3, 12.25),
])
pocket5 = doc.addObject("PartDesign::Pocket", "Pocket004")
body.addObject(pocket5)
pocket5.Profile = sketch9
pocket5.Length = 8
pocket5.Reversed = True

sketch10 = doc.addObject("Sketcher::SketchObject", "Sketch009")
body.addObject(sketch10)
sketch10.AttachmentSupport = (doc.XY_Plane, [""])
sketch10.MapMode = "FlatFace"
sketch10.AttachmentOffset = App.Placement(Vector(0, 0, -15.1), App.Rotation())
sketch10.addGeometry([
    Part.LineSegment(Vector(16.4, 18.63, 0), Vector(16.4, 9.05, 0)),
    Part.LineSegment(Vector(16.4, 9.05, 0), Vector(9.88, 9.05, 0)),
    Part.LineSegment(Vector(9.88, 9.05, 0), Vector(9.88, 18.63, 0)),
    Part.LineSegment(Vector(9.88, 18.63, 0), Vector(16.4, 18.63, 0)),
    Part.LineSegment(Vector(-9.88, 18.63, 0), Vector(-9.88, 9.05, 0)),
    Part.LineSegment(Vector(-9.88, 9.05, 0), Vector(-16.4, 9.05, 0)),
    Part.LineSegment(Vector(-16.4, 9.05, 0), Vector(-16.4, 18.63, 0)),
    Part.LineSegment(Vector(-16.4, 18.63, 0), Vector(-9.88, 18.63, 0)),
], False)
sketch10.addConstraint([
    Sketcher.Constraint("Coincident", 0, 2, 1, 1),
    Sketcher.Constraint("Coincident", 1, 2, 2, 1),
    Sketcher.Constraint("Coincident", 2, 2, 3, 1),
    Sketcher.Constraint("Coincident", 3, 2, 0, 1),
    Sketcher.Constraint("Coincident", 4, 2, 5, 1),
    Sketcher.Constraint("Coincident", 5, 2, 6, 1),
    Sketcher.Constraint("Coincident", 6, 2, 7, 1),
    Sketcher.Constraint("Coincident", 7, 2, 4, 1),
    Sketcher.Constraint("Vertical", 0),
    Sketcher.Constraint("Horizontal", 1),
    Sketcher.Constraint("Vertical", 2),
    Sketcher.Constraint("Horizontal", 3),
    Sketcher.Constraint("Vertical", 4),
    Sketcher.Constraint("Horizontal", 5),
    Sketcher.Constraint("Vertical", 6),
    Sketcher.Constraint("Horizontal", 7),
    Sketcher.Constraint("Symmetric", 1, 2, 4, 2, -2),
    Sketcher.Constraint("Symmetric", 3, 2, 6, 2, -2),
    Sketcher.Constraint("DistanceX", 1, 2, 1, 1, 6.52),
    Sketcher.Constraint("DistanceY", 0, 2, 0, 1, 9.58),
    Sketcher.Constraint("DistanceX", -1, 1, 0, 2, 16.4),
    Sketcher.Constraint("DistanceY", -1, 1, 0, 2, 9.05),
])
pad5 = doc.addObject("PartDesign::Pad", "Pad004")
body.addObject(pad5)
pad5.Profile = sketch10
pad5.Length = 3
pad5.Reversed = True

sketch11 = doc.addObject("Sketcher::SketchObject", "Sketch010")
body.addObject(sketch11)
sketch11.AttachmentSupport = (doc.XY_Plane, [""])
sketch11.MapMode = "FlatFace"
sketch11.AttachmentOffset = App.Placement(Vector(0, 0, -15.1), App.Rotation())
sketch11.addGeometry([
    Part.ArcOfCircle(Part.Circle(Vector(-11.75, 31.75, 0), Vector(0, 0, 1), 4.65), math.radians(90), math.radians(180)),
    Part.LineSegment(Vector(-11.75, 36.4, 0), Vector(11.75, 36.4, 0)),
    Part.ArcOfCircle(Part.Circle(Vector(11.75, 31.75, 0), Vector(0, 0, 1), 4.65), math.radians(0), math.radians(90)),
    Part.LineSegment(Vector(16.4, 31.75, 0), Vector(16.4, -7.25, 0)),
    Part.ArcOfCircle(Part.Circle(Vector(11.75, -7.25, 0), Vector(0, 0, 1), 4.65), math.radians(-90), math.radians(0)),
    Part.LineSegment(Vector(11.75, -11.9, 0), Vector(-11.75, -11.9, 0)),
    Part.ArcOfCircle(Part.Circle(Vector(-11.75, -7.25, 0), Vector(0, 0, 1), 4.65), math.radians(180), math.radians(270)),
    Part.LineSegment(Vector(-16.4, -7.25, 0), Vector(-16.4, 31.75, 0)),
    Part.LineSegment(Vector(-13.55, -9.05, 0), Vector(13.55, -9.05, 0)),
    Part.LineSegment(Vector(13.55, -9.05, 0), Vector(13.55, 33.55, 0)),
    Part.LineSegment(Vector(13.55, 33.55, 0), Vector(-13.55, 33.55, 0)),
    Part.LineSegment(Vector(-13.55, 33.55, 0), Vector(-13.55, -9.05, 0)),
], False)
sketch11.addConstraint([
    Sketcher.Constraint("Tangent", 0, 1, 1, 1),
    Sketcher.Constraint("Tangent", 1, 2, 2, 2),
    Sketcher.Constraint("Tangent", 2, 1, 3, 1),
    Sketcher.Constraint("Tangent", 3, 2, 4, 2),
    Sketcher.Constraint("Tangent", 4, 1, 5, 1),
    Sketcher.Constraint("Tangent", 5, 2, 6, 2),
    Sketcher.Constraint("Tangent", 6, 1, 7, 1),
    Sketcher.Constraint("Tangent", 7, 2, 0, 2),
    Sketcher.Constraint("Coincident", 8, 2, 9, 1),
    Sketcher.Constraint("Coincident", 9, 2, 10, 1),
    Sketcher.Constraint("Coincident", 10, 2, 11, 1),
    Sketcher.Constraint("Coincident", 11, 2, 8, 1),
    Sketcher.Constraint("Horizontal", 1),
    Sketcher.Constraint("Vertical", 3),
    Sketcher.Constraint("Horizontal", 5),
    Sketcher.Constraint("Vertical", 7),
    Sketcher.Constraint("Horizontal", 8),
    Sketcher.Constraint("Vertical", 9),
    Sketcher.Constraint("Horizontal", 10),
    Sketcher.Constraint("Vertical", 11),
    Sketcher.Constraint("Equal", 0, 2),
    Sketcher.Constraint("Equal", 2, 4),
    Sketcher.Constraint("Equal", 4, 6),
    Sketcher.Constraint("DistanceY", 3, 2, 3, 1, 39.0),
    Sketcher.Constraint("Radius", 0, 4.65),
    Sketcher.Constraint("DistanceX", 1, 1, 1, 2, 23.5),
    Sketcher.Constraint("DistanceX", 8, 1, 8, 2, 27.1),
    Sketcher.Constraint("DistanceY", 9, 1, 9, 2, 42.6),
    Sketcher.Constraint("DistanceY", -1, 1, 0, 1, 36.4),
    Sketcher.Constraint("DistanceX", -1, 1, 2, 1, 16.4),
    Sketcher.Constraint("DistanceX", 4, 3, 8, 2, 1.8),
    Sketcher.Constraint("DistanceY", 8, 2, 4, 3, 1.8),
])
pad6 = doc.addObject("PartDesign::Pad", "Pad005")
body.addObject(pad6)
pad6.Profile = sketch11
pad6.Length = 18
pad6.Reversed = True

sketch12 = doc.addObject("Sketcher::SketchObject", "Sketch011")
body.addObject(sketch12)
sketch12.AttachmentSupport = (doc.XY_Plane, [""])
sketch12.MapMode = "FlatFace"
sketch12.AttachmentOffset = App.Placement(Vector(0, 0, -18.1), App.Rotation())
sketch12.addGeometry([
    Part.LineSegment(Vector(13.55, 15.45, 0), Vector(13.55, 9.05, 0)),
    Part.LineSegment(Vector(13.55, 9.05, 0), Vector(-13.55, 9.05, 0)),
    Part.LineSegment(Vector(-13.55, 9.05, 0), Vector(-13.55, 15.45, 0)),
    Part.LineSegment(Vector(-13.55, 15.45, 0), Vector(13.55, 15.45, 0)),
], False)
sketch12.addConstraint([
    Sketcher.Constraint("Coincident", 0, 2, 1, 1),
    Sketcher.Constraint("Coincident", 1, 2, 2, 1),
    Sketcher.Constraint("Coincident", 2, 2, 3, 1),
    Sketcher.Constraint("Coincident", 3, 2, 0, 1),
    Sketcher.Constraint("Vertical", 0),
    Sketcher.Constraint("Horizontal", 1),
    Sketcher.Constraint("Vertical", 2),
    Sketcher.Constraint("Horizontal", 3),
    Sketcher.Constraint("DistanceX", 1, 2, 1, 1, 27.1),
    Sketcher.Constraint("DistanceY", 0, 2, 0, 1, 6.4),
    Sketcher.Constraint("DistanceX", -1, 1, 0, 2, 13.55),
    Sketcher.Constraint("DistanceY", -1, 1, 0, 2, 9.05),
])
pad7 = doc.addObject("PartDesign::Pad", "Pad006")
body.addObject(pad7)
pad7.Profile = sketch12
pad7.Length = 15
pad7.Reversed = True

sketch13 = doc.addObject("Sketcher::SketchObject", "Sketch012")
body.addObject(sketch13)
sketch13.AttachmentSupport = (doc.XZ_Plane, [""])
sketch13.MapMode = "FlatFace"
sketch13.AttachmentOffset = App.Placement(Vector(0, 0, -9.05), App.Rotation())
sketch13.addGeometry([
    Part.LineSegment(Vector(-9.88, -18.1, 0), Vector(0, -27.98, 0)),
    Part.LineSegment(Vector(0, -27.98, 0), Vector(9.88, -18.1, 0)),
    Part.LineSegment(Vector(9.88, -18.1, 0), Vector(-9.88, -18.1, 0)),
], False)
sketch13.addConstraint([
    Sketcher.Constraint("Coincident", 0, 2, 1, 1),
    Sketcher.Constraint("Coincident", 1, 2, 2, 1),
    Sketcher.Constraint("Coincident", 2, 2, 0, 1),
    Sketcher.Constraint("Horizontal", 2),
    Sketcher.Constraint("PointOnObject", 0, 2, -2),
    Sketcher.Constraint("Perpendicular", 0, 1),
    Sketcher.Constraint("Equal", 0, 1),
    Sketcher.Constraint("DistanceX", 2, 2, 2, 1, 19.76),
    Sketcher.Constraint("DistanceY", 1, 2, -1, 1, 18.1),
])
pocket6 = doc.addObject("PartDesign::Pocket", "Pocket005")
body.addObject(pocket6)
pocket6.Profile = sketch13
pocket6.Type = "UpToFirst"

sketch14 = doc.addObject("Sketcher::SketchObject", "Sketch013")
body.addObject(sketch14)
sketch14.AttachmentSupport = (doc.YZ_Plane, [""])
sketch14.MapMode = "FlatFace"
sketch14.AttachmentOffset = App.Placement(Vector(0, 0, 13.55), App.Rotation())
sketch14.addGeometry([
    Part.LineSegment(Vector(9.05, -33.1, 0), Vector(3.05, -33.1, 0)),
    Part.LineSegment(Vector(3.05, -33.1, 0), Vector(3.05, -26, 0)),
    Part.LineSegment(Vector(3.05, -26, 0), Vector(9.05, -26, 0)),
    Part.LineSegment(Vector(9.05, -26, 0), Vector(9.05, -33.1, 0)),
], False)
sketch14.addConstraint([
    Sketcher.Constraint("Coincident", 0, 2, 1, 1),
    Sketcher.Constraint("Coincident", 1, 2, 2, 1),
    Sketcher.Constraint("Coincident", 2, 2, 3, 1),
    Sketcher.Constraint("Coincident", 3, 2, 0, 1),
    Sketcher.Constraint("Horizontal", 0),
    Sketcher.Constraint("Vertical", 1),
    Sketcher.Constraint("Horizontal", 2),
    Sketcher.Constraint("Vertical", 3),
    Sketcher.Constraint("DistanceX", 0, 2, 0, 1, 6.0),
    Sketcher.Constraint("DistanceY", 1, 1, 1, 2, 7.1),
    Sketcher.Constraint("DistanceY", 1, 2, -1, 1, 26.0),
    Sketcher.Constraint("DistanceX", -1, 1, 0, 2, 3.05),
])
pocket7 = doc.addObject("PartDesign::Pocket", "Pocket006")
body.addObject(pocket7)
pocket7.Profile = sketch14
pocket7.Type = "UpToFirst"
pocket7.Reversed = True

sketch15 = doc.addObject("Sketcher::SketchObject", "Sketch014")
body.addObject(sketch15)
sketch15.AttachmentSupport = (doc.YZ_Plane, [""])
sketch15.MapMode = "FlatFace"
sketch15.AttachmentOffset = App.Placement(Vector(0, 0, 13.55), App.Rotation())
sketch15.addGeometry([
    Part.LineSegment(Vector(33.55, -33.1, 0), Vector(27.55, -33.1, 0)),
    Part.LineSegment(Vector(27.55, -33.1, 0), Vector(27.55, -26, 0)),
    Part.LineSegment(Vector(27.55, -26, 0), Vector(33.55, -26, 0)),
    Part.LineSegment(Vector(33.55, -26, 0), Vector(33.55, -33.1, 0)),
], False)
sketch15.addConstraint([
    Sketcher.Constraint("Coincident", 0, 2, 1, 1),
    Sketcher.Constraint("Coincident", 1, 2, 2, 1),
    Sketcher.Constraint("Coincident", 2, 2, 3, 1),
    Sketcher.Constraint("Coincident", 3, 2, 0, 1),
    Sketcher.Constraint("Horizontal", 0),
    Sketcher.Constraint("Vertical", 1),
    Sketcher.Constraint("Horizontal", 2),
    Sketcher.Constraint("Vertical", 3),
    Sketcher.Constraint("DistanceX", 0, 2, 0, 1, 6.0),
    Sketcher.Constraint("DistanceY", 1, 1, 1, 2, 7.1),
    Sketcher.Constraint("DistanceY", 1, 2, -1, 1, 26.0),
    Sketcher.Constraint("DistanceX", -1, 1, 0, 2, 27.55),
])
pocket8 = doc.addObject("PartDesign::Pocket", "Pocket007")
body.addObject(pocket8)
pocket8.Profile = sketch15
pocket8.Type = "UpToFirst"
pocket8.Reversed = True

sketch16 = doc.addObject("Sketcher::SketchObject", "Sketch015")
body.addObject(sketch16)
sketch16.AttachmentSupport = (doc.XZ_Plane, [""])
sketch16.MapMode = "FlatFace"
sketch16.AttachmentOffset = App.Placement(Vector(0, 0, 9.05), App.Rotation())
sketch16.addGeometry([
    Part.LineSegment(Vector(-10.73, -14.1, 0), Vector(-10.73, -18.1, 0)),
    Part.LineSegment(Vector(-10.73, -18.1, 0), Vector(10.73, -18.1, 0)),
    Part.LineSegment(Vector(10.73, -18.1, 0), Vector(10.73, -14.1, 0)),
    Part.LineSegment(Vector(10.73, -14.1, 0), Vector(-10.73, -14.1, 0)),
], False)
sketch16.addConstraint([
    Sketcher.Constraint("Coincident", 0, 2, 1, 1),
    Sketcher.Constraint("Coincident", 1, 2, 2, 1),
    Sketcher.Constraint("Coincident", 2, 2, 3, 1),
    Sketcher.Constraint("Coincident", 3, 2, 0, 1),
    Sketcher.Constraint("Vertical", 0),
    Sketcher.Constraint("Horizontal", 1),
    Sketcher.Constraint("Vertical", 2),
    Sketcher.Constraint("Horizontal", 3),
    Sketcher.Constraint("DistanceY", 0, 2, 0, 1, 4.0),
    Sketcher.Constraint("DistanceX", 1, 1, 1, 2, 21.46),
    Sketcher.Constraint("DistanceY", 0, 2, -1, 1, 18.1),
    Sketcher.Constraint("DistanceX", 0, 2, -1, 1, 10.73),
])
pocket9 = doc.addObject("PartDesign::Pocket", "Pocket008")
body.addObject(pocket9)
pocket9.Profile = sketch16
pocket9.Length = 2.85
pocket9.Reversed = True

sketch17 = doc.addObject("Sketcher::SketchObject", "Sketch016")
body.addObject(sketch17)
sketch17.AttachmentSupport = (doc.XZ_Plane, [""])
sketch17.MapMode = "FlatFace"
sketch17.AttachmentOffset = App.Placement(Vector(0, 0, -36.4), App.Rotation())
sketch17.addGeometry([
    Part.LineSegment(Vector(-11.32, -21.1, 0), Vector(-11.32, -15.1, 0)),
    Part.LineSegment(Vector(-11.32, -15.1, 0), Vector(11.32, -15.1, 0)),
    Part.LineSegment(Vector(11.32, -15.1, 0), Vector(11.32, -21.1, 0)),
    Part.LineSegment(Vector(11.32, -21.1, 0), Vector(-11.32, -21.1, 0)),
], False)
sketch17.addConstraint([
    Sketcher.Constraint("Coincident", 0, 2, 1, 1),
    Sketcher.Constraint("Coincident", 1, 2, 2, 1),
    Sketcher.Constraint("Coincident", 2, 2, 3, 1),
    Sketcher.Constraint("Coincident", 3, 2, 0, 1),
    Sketcher.Constraint("Vertical", 0),
    Sketcher.Constraint("Horizontal", 1),
    Sketcher.Constraint("Vertical", 2),
    Sketcher.Constraint("Horizontal", 3),
    Sketcher.Constraint("DistanceY", 0, 1, 0, 2, 6.0),
    Sketcher.Constraint("DistanceX", 1, 1, 1, 2, 22.64),
    Sketcher.Constraint("DistanceY", 0, 2, -1, 1, 15.1),
    Sketcher.Constraint("DistanceX", 0, 2, -1, 1, 11.32),
])
pocket10 = doc.addObject("PartDesign::Pocket", "Pocket009")
body.addObject(pocket10)
pocket10.Profile = sketch17
pocket10.Type = "UpToFirst"
pocket10.Reversed = True

doc.recompute()
